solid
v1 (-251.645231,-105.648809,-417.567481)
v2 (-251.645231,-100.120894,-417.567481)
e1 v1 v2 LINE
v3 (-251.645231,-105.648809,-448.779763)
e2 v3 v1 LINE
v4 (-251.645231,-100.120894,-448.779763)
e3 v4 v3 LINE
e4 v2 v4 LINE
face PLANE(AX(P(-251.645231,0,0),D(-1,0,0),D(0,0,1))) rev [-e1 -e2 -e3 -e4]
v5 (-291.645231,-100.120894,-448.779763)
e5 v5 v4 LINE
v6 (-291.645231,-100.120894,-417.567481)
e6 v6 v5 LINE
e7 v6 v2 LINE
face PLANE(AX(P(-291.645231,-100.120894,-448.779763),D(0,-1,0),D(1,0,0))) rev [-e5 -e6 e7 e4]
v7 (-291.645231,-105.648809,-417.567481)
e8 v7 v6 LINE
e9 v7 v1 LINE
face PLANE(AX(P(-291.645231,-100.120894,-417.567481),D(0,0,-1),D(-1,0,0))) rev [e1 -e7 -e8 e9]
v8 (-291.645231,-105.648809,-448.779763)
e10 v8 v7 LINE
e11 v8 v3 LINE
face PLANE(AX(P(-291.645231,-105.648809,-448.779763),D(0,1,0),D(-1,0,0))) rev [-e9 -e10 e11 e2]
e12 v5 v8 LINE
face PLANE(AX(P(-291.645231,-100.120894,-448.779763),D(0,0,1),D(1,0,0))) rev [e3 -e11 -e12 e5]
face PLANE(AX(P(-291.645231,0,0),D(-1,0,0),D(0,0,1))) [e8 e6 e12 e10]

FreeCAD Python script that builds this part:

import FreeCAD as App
import Part
import Sketcher

V = App.Vector
Q = App.Units.Quantity


def add_polygon(sketch, points):
    """Adds a closed chain of lines whose ends are joined by coincident constraints."""
    first, n = sketch.GeometryCount, len(points)
    for a, b in zip(points, points[1:] + points[:1]):
        sketch.addGeometry(Part.LineSegment(App.Vector(*a, 0), App.Vector(*b, 0)), False)
    for i in range(n):
        sketch.addConstraint(Sketcher.Constraint("Coincident", first + i, 2, first + (i + 1) % n, 1))

doc = App.newDocument("Part")
body = doc.addObject("PartDesign::Body", "Body")

# Sketch on YZ plane
sketch1 = body.newObject("Sketcher::SketchObject", "Sketch")
sketch1.AttachmentSupport = (doc.getObject("YZ_Plane"), [""])
sketch1.MapMode = "FlatFace"
sketch1.AttachmentOffset = App.Placement(V(0, 0, -251.645231), App.Rotation())
add_polygon(sketch1, [(-100, -449), (-106, -449), (-106, -418), (-100, -418)])  # lines 0-3
sketch1.addConstraint([
    Sketcher.Constraint("Horizontal", 0),
    Sketcher.Constraint("Vertical", 1),
    Sketcher.Constraint("Horizontal", 2),
    Sketcher.Constraint("Vertical", 3),
    Sketcher.Constraint("DistanceY", 1, 1, 1, 2, Q("31.212282 mm")),
    Sketcher.Constraint("DistanceX", 0, 2, 0, 1, Q("5.527915 mm")),
    Sketcher.Constraint("DistanceX", 0, 2, -1, 1, Q("105.648809 mm")),
    Sketcher.Constraint("DistanceY", 1, 2, -1, 1, Q("417.567481 mm")),
])
pad1 = body.newObject("PartDesign::Pad", "Pad")
pad1.Profile = sketch1
pad1.Length = 40
pad1.Reversed = True

doc.recompute()
